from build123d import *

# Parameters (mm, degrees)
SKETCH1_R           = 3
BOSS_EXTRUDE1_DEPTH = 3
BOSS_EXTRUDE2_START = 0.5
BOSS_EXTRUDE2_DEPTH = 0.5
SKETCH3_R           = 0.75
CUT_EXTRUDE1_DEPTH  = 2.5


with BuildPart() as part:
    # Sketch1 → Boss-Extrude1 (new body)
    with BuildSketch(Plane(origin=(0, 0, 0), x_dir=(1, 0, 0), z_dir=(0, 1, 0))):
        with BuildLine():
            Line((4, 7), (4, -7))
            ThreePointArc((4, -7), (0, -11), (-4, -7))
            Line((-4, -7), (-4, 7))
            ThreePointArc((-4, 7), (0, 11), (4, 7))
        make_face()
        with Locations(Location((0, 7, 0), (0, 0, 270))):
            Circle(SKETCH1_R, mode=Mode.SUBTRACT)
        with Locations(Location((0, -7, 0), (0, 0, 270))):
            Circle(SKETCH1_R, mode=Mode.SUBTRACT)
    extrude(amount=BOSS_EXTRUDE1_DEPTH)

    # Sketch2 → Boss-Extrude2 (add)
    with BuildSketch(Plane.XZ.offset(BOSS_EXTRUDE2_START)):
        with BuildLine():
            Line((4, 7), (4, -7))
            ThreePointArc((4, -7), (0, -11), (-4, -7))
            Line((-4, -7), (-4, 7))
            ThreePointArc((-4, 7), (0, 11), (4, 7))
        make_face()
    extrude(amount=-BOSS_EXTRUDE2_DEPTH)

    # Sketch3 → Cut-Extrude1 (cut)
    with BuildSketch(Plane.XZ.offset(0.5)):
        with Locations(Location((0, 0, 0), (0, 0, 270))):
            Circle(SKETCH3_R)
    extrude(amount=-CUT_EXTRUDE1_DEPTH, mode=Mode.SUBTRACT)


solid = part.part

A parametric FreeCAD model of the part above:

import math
import FreeCAD as App
import Part
import Sketcher
from FreeCAD import Vector

doc = App.newDocument("Part")
body = doc.addObject("PartDesign::Body", "Body")

sketch1 = body.newObject("Sketcher::SketchObject", "Sketch")
sketch1.AttachmentSupport = (doc.getObject("XZ_Plane"), [""])
sketch1.MapMode = "FlatFace"
sketch1.addGeometry([
    Part.LineSegment(Vector(4, 7, 0), Vector(4, -7, 0)),
    Part.ArcOfCircle(Part.Circle(Vector(0, -7, 0), Vector(0, 0, 1), 4), math.radians(180), math.radians(360)),
    Part.LineSegment(Vector(-4, -7, 0), Vector(-4, 7, 0)),
    Part.ArcOfCircle(Part.Circle(Vector(0, 7, 0), Vector(0, 0, 1), 4), math.radians(0), math.radians(180)),
    Part.Circle(Vector(0, 7, 0), Vector(0, 0, 1), 3),
    Part.Circle(Vector(0, -7, 0), Vector(0, 0, 1), 3),
], False)
sketch1.addConstraint([
    Sketcher.Constraint("Tangent", 0, 2, 1, 2),
    Sketcher.Constraint("Tangent", 1, 1, 2, 1),
    Sketcher.Constraint("Tangent", 2, 2, 3, 2),
    Sketcher.Constraint("Tangent", 3, 1, 0, 1),
    Sketcher.Constraint("Vertical", 0),
    Sketcher.Constraint("Vertical", 2),
    Sketcher.Constraint("Coincident", 4, 3, 3, 3),
    Sketcher.Constraint("Coincident", 5, 3, 1, 3),
    Sketcher.Constraint("Equal", 4, 5),
    Sketcher.Constraint("Symmetric", 1, 3, 3, 3, -1, 1),
    Sketcher.Constraint("Diameter", 4, 6.0),
    Sketcher.Constraint("Radius", 1, 4.0),
    Sketcher.Constraint("DistanceY", 0, 2, 0, 1, 14.0),
])
pad1 = body.newObject("PartDesign::Pad", "Pad")
pad1.Profile = sketch1
pad1.Length = 3
pad1.Reversed = True

sketch2 = body.newObject("Sketcher::SketchObject", "Sketch001")
sketch2.AttachmentSupport = (doc.getObject("XZ_Plane"), [""])
sketch2.MapMode = "FlatFace"
sketch2.AttachmentOffset = App.Placement(Vector(0, 0, 0.5), App.Rotation())
sketch2.addGeometry([
    Part.LineSegment(Vector(4, -7, 0), Vector(4, 7, 0)),
    Part.ArcOfCircle(Part.Circle(Vector(0, 7, 0), Vector(0, 0, 1), 4), math.radians(0), math.radians(180)),
    Part.LineSegment(Vector(-4, 7, 0), Vector(-4, -7, 0)),
    Part.ArcOfCircle(Part.Circle(Vector(0, -7, 0), Vector(0, 0, 1), 4), math.radians(180), math.radians(360)),
], False)
sketch2.addConstraint([
    Sketcher.Constraint("Tangent", 0, 2, 1, 1),
    Sketcher.Constraint("Tangent", 1, 2, 2, 1),
    Sketcher.Constraint("Tangent", 2, 2, 3, 1),
    Sketcher.Constraint("Tangent", 3, 2, 0, 1),
    Sketcher.Constraint("Vertical", 0),
    Sketcher.Constraint("Vertical", 2),
    Sketcher.Constraint("Symmetric", 1, 3, 3, 3, -1, 1),
    Sketcher.Constraint("Radius", 1, 4.0),
    Sketcher.Constraint("DistanceY", 0, 1, 0, 2, 14.0),
])
pad2 = body.newObject("PartDesign::Pad", "Pad001")
pad2.Profile = sketch2
pad2.Length = 0.5
pad2.Reversed = True

sketch3 = body.newObject("Sketcher::SketchObject", "Sketch002")
sketch3.AttachmentSupport = (doc.getObject("XZ_Plane"), [""])
sketch3.MapMode = "FlatFace"
sketch3.AttachmentOffset = App.Placement(Vector(0, 0, 0.5), App.Rotation())
sketch3.addGeometry(Part.Circle(Vector(0, 0, 0), Vector(0, 0, 1), 0.8), False)
sketch3.addConstraint([
    Sketcher.Constraint("Coincident", 0, 3, -1, 1),
    Sketcher.Constraint("Diameter", 0, 1.5),
])
pocket1 = body.newObject("PartDesign::Pocket", "Pocket")
pocket1.Profile = sketch3
pocket1.Length = 2.5

doc.recompute()
